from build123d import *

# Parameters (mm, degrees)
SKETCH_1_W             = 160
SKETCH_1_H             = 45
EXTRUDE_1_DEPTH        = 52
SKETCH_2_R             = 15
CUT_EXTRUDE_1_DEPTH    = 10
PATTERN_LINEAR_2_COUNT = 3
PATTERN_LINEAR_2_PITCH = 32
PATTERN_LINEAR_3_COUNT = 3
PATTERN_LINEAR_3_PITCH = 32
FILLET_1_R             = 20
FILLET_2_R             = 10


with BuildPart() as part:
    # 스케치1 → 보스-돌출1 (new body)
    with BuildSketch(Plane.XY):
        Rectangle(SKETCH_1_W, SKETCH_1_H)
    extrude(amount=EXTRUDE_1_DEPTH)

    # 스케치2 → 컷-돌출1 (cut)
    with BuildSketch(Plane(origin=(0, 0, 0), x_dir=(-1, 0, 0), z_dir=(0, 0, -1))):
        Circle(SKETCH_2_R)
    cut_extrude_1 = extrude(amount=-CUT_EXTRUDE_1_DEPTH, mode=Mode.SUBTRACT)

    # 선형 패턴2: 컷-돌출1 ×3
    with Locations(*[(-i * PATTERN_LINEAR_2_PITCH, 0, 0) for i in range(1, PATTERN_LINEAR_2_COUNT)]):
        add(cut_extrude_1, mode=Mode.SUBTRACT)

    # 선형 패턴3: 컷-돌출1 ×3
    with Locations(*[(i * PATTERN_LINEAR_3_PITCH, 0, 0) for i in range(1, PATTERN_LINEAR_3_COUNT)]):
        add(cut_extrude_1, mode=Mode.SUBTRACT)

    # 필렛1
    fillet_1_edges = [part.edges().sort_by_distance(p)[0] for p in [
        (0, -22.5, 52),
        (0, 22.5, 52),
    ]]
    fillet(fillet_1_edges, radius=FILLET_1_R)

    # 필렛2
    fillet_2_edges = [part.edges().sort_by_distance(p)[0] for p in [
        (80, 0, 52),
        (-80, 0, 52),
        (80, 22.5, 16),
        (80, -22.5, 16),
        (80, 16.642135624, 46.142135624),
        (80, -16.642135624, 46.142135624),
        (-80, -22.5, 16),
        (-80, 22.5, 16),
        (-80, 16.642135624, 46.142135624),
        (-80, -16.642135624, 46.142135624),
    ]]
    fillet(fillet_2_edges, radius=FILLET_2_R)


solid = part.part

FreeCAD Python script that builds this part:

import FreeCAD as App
import Part
import Sketcher


def edges_at(feature, points):
    """Names of the edges that pass closest to the given points."""
    edges = feature.Shape.Edges
    near = lambda p: min(range(len(edges)), key=lambda i: edges[i].distToShape(Part.Vertex(*p))[0])
    return sorted({f"Edge{near(p) + 1}" for p in points})


def add_polygon(sketch, points):
    """Adds a closed chain of lines whose ends are joined by coincident constraints."""
    first, n = sketch.GeometryCount, len(points)
    for a, b in zip(points, points[1:] + points[:1]):
        sketch.addGeometry(Part.LineSegment(App.Vector(*a, 0), App.Vector(*b, 0)), False)
    for i in range(n):
        sketch.addConstraint(Sketcher.Constraint("Coincident", first + i, 2, first + (i + 1) % n, 1))

doc = App.newDocument("Part")
body = doc.addObject("PartDesign::Body", "Body")

# Sketch on XY plane
sketch1 = body.newObject("Sketcher::SketchObject", "Sketch")
sketch1.AttachmentSupport = (doc.getObject("XY_Plane"), [""])
sketch1.MapMode = "FlatFace"
add_polygon(sketch1, [(-80, 22.5), (-80, -22.5), (80, -22.5), (80, 22.5)])  # lines 0-3
sketch1.addConstraint([
    Sketcher.Constraint("Vertical", 0),
    Sketcher.Constraint("Horizontal", 1),
    Sketcher.Constraint("Vertical", 2),
    Sketcher.Constraint("Horizontal", 3),
    Sketcher.Constraint("Symmetric", 0, 2, 2, 2, -1, 1),
    Sketcher.Constraint("DistanceX", 1, 1, 1, 2, 160.0),
    Sketcher.Constraint("DistanceY", 0, 2, 0, 1, 45.0),
])
pad1 = body.newObject("PartDesign::Pad", "Pad")
pad1.Profile = sketch1
pad1.Length = 52

# Sketch on XY plane
sketch2 = body.newObject("Sketcher::SketchObject", "Sketch001")
sketch2.AttachmentSupport = (doc.getObject("XY_Plane"), [""])
sketch2.MapMode = "FlatFace"
sketch2.addGeometry(Part.Circle(App.Vector(0, 0, 0), App.Vector(0, 0, 1), 15), False)
sketch2.addConstraint([
    Sketcher.Constraint("Coincident", 0, 3, -1, 1),
    Sketcher.Constraint("Diameter", 0, 30.0),
])
pocket1 = body.newObject("PartDesign::Pocket", "Pocket")
pocket1.Profile = sketch2
pocket1.Length = 10
pocket1.Reversed = True
doc.recompute()

linearpattern = body.newObject("PartDesign::LinearPattern", "LinearPattern")
linearpattern.Originals = [pocket1]
linearpattern.Direction = (doc.getObject("X_Axis"), [""])
linearpattern.Mode = "offset"
linearpattern.Offset = 32
linearpattern.Occurrences = 3
linearpattern.Reversed = True
body.Tip = linearpattern
doc.recompute()

linearpattern2 = body.newObject("PartDesign::LinearPattern", "LinearPattern001")
linearpattern2.Originals = [pocket1]
linearpattern2.Direction = (doc.getObject("X_Axis"), [""])
linearpattern2.Mode = "offset"
linearpattern2.Offset = 32
linearpattern2.Occurrences = 3
body.Tip = linearpattern2
doc.recompute()

fillet = body.newObject("PartDesign::Fillet", "Fillet")
fillet.Base = (linearpattern2, edges_at(linearpattern2, [(0, -22.5, 52), (0, 22.5, 52)]))
fillet.Radius = 20
doc.recompute()

fillet2 = body.newObject("PartDesign::Fillet", "Fillet001")
fillet2.Base = (fillet, edges_at(fillet, [
    (80, 0, 52),
    (-80, 0, 52),
    (80, 22.5, 16),
    (80, -22.5, 16),
    (80, 16.642, 46.142),
    (80, -16.642, 46.142),
    (-80, -22.5, 16),
    (-80, 22.5, 16),
    (-80, 16.642, 46.142),
    (-80, -16.642, 46.142),
]))
fillet2.Radius = 10

doc.recompute()
